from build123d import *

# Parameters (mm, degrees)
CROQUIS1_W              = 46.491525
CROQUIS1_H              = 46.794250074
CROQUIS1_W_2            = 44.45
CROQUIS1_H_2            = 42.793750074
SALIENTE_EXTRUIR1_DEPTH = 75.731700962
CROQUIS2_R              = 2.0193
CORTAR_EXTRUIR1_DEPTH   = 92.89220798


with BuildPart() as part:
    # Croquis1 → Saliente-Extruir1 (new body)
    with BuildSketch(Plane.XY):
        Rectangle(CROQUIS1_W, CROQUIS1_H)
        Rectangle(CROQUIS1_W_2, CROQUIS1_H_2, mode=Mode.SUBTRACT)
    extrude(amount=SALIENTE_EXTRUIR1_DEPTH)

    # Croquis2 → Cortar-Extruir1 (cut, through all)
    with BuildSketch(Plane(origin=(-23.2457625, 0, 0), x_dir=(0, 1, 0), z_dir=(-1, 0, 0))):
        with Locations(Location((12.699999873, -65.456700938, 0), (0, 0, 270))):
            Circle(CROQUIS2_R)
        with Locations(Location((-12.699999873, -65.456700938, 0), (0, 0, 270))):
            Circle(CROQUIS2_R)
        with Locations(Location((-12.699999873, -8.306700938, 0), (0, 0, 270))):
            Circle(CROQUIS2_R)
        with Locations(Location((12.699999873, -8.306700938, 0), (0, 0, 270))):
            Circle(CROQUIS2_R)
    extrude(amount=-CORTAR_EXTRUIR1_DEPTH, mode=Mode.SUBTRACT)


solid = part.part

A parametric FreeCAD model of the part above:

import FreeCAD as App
import Part
import Sketcher
Q = App.Units.Quantity

doc = App.newDocument("Part")
params = doc.addObject("Spreadsheet::Sheet", "Params")
for row, (alias, value) in enumerate([
    ("sketch1_width", "1.75 in"),
    ("pad1_length", "75.731701 mm"),
    ("sketch2_diameter", "0.159 in"),
], start=1):
    params.set(f"A{row}", alias)
    params.set(f"B{row}", "=" + value)
    params.setAlias(f"B{row}", alias)

body = doc.addObject("PartDesign::Body", "Body")

# Sketch on XY plane
sketch1 = body.newObject("Sketcher::SketchObject", "Sketch")
sketch1.AttachmentSupport = (doc.getObject("XY_Plane"), [""])
sketch1.MapMode = "FlatFace"
sketch1.addGeometry([
    Part.LineSegment(App.Vector(-23, 23, 0), App.Vector(-23, -23, 0)),  # 0
    Part.LineSegment(App.Vector(-23, -23, 0), App.Vector(23, -23, 0)),  # 1
    Part.LineSegment(App.Vector(23, -23, 0), App.Vector(23, 23, 0)),  # 2
    Part.LineSegment(App.Vector(23, 23, 0), App.Vector(-23, 23, 0)),  # 3
    Part.LineSegment(App.Vector(22, -21, 0), App.Vector(-22, -21, 0)),  # 4
    Part.LineSegment(App.Vector(-22, -21, 0), App.Vector(-22, 21, 0)),  # 5
    Part.LineSegment(App.Vector(-22, 21, 0), App.Vector(22, 21, 0)),  # 6
    Part.LineSegment(App.Vector(22, 21, 0), App.Vector(22, -21, 0)),  # 7
], False)
sketch1.addConstraint([
    Sketcher.Constraint("Coincident", 0, 2, 1, 1),
    Sketcher.Constraint("Coincident", 1, 2, 2, 1),
    Sketcher.Constraint("Coincident", 2, 2, 3, 1),
    Sketcher.Constraint("Coincident", 3, 2, 0, 1),
    Sketcher.Constraint("Coincident", 4, 2, 5, 1),
    Sketcher.Constraint("Coincident", 5, 2, 6, 1),
    Sketcher.Constraint("Coincident", 6, 2, 7, 1),
    Sketcher.Constraint("Coincident", 7, 2, 4, 1),
    Sketcher.Constraint("Vertical", 0),
    Sketcher.Constraint("Horizontal", 1),
    Sketcher.Constraint("Vertical", 2),
    Sketcher.Constraint("Horizontal", 3),
    Sketcher.Constraint("Horizontal", 4),
    Sketcher.Constraint("Vertical", 5),
    Sketcher.Constraint("Horizontal", 6),
    Sketcher.Constraint("Vertical", 7),
    Sketcher.Constraint("Symmetric", 0, 2, 2, 2, -1, 1),
    Sketcher.Constraint("Symmetric", 4, 2, 6, 2, -1, 1),
    Sketcher.Constraint("DistanceX", 4, 2, 4, 1, Q("1.75 in")),
    Sketcher.Constraint("DistanceY", 0, 2, 0, 1, 46.79425),
    Sketcher.Constraint("DistanceY", 5, 1, 5, 2, 42.79375),
    Sketcher.Constraint("DistanceX", 1, 1, 1, 2, 46.491525),
])
sketch1.setExpression("Constraints[18]", "Params.sketch1_width")
pad1 = body.newObject("PartDesign::Pad", "Pad")
pad1.Profile = sketch1
pad1.setExpression("Length", "Params.pad1_length")

# Sketch on YZ plane
sketch2 = body.newObject("Sketcher::SketchObject", "Sketch001")
sketch2.AttachmentSupport = (doc.getObject("YZ_Plane"), [""])
sketch2.MapMode = "FlatFace"
sketch2.AttachmentOffset = App.Placement(App.Vector(0, 0, -23.245763), App.Rotation())
sketch2.addGeometry([
    Part.Circle(App.Vector(12.7, 65.5, 0), App.Vector(0, 0, 1), 2),
    Part.Circle(App.Vector(-12.7, 65.5, 0), App.Vector(0, 0, 1), 2),
    Part.Circle(App.Vector(-12.7, 8.3, 0), App.Vector(0, 0, 1), 2),
    Part.Circle(App.Vector(12.7, 8.3, 0), App.Vector(0, 0, 1), 2),
], False)
sketch2.addConstraint([
    Sketcher.Constraint("Equal", 0, 1),
    Sketcher.Constraint("Equal", 1, 2),
    Sketcher.Constraint("Equal", 2, 3),
    Sketcher.Constraint("Symmetric", 0, 3, 1, 3, -2),
    Sketcher.Constraint("Symmetric", 2, 3, 3, 3, -2),
    Sketcher.Constraint("Vertical", 1, 3, 2, 3),
    Sketcher.Constraint("Diameter", 0, Q("0.159 in")),
    Sketcher.Constraint("DistanceX", 1, 3, 0, 3, Q("1 in")),
    Sketcher.Constraint("DistanceY", 2, 3, 1, 3, Q("2.25 in")),
    Sketcher.Constraint("DistanceY", -1, 1, 0, 3, 65.456701),
])
sketch2.setExpression("Constraints[6]", "Params.sketch2_diameter")
pocket1 = body.newObject("PartDesign::Pocket", "Pocket")
pocket1.Profile = sketch2
pocket1.Type = "ThroughAll"
pocket1.Reversed = True

doc.recompute()
